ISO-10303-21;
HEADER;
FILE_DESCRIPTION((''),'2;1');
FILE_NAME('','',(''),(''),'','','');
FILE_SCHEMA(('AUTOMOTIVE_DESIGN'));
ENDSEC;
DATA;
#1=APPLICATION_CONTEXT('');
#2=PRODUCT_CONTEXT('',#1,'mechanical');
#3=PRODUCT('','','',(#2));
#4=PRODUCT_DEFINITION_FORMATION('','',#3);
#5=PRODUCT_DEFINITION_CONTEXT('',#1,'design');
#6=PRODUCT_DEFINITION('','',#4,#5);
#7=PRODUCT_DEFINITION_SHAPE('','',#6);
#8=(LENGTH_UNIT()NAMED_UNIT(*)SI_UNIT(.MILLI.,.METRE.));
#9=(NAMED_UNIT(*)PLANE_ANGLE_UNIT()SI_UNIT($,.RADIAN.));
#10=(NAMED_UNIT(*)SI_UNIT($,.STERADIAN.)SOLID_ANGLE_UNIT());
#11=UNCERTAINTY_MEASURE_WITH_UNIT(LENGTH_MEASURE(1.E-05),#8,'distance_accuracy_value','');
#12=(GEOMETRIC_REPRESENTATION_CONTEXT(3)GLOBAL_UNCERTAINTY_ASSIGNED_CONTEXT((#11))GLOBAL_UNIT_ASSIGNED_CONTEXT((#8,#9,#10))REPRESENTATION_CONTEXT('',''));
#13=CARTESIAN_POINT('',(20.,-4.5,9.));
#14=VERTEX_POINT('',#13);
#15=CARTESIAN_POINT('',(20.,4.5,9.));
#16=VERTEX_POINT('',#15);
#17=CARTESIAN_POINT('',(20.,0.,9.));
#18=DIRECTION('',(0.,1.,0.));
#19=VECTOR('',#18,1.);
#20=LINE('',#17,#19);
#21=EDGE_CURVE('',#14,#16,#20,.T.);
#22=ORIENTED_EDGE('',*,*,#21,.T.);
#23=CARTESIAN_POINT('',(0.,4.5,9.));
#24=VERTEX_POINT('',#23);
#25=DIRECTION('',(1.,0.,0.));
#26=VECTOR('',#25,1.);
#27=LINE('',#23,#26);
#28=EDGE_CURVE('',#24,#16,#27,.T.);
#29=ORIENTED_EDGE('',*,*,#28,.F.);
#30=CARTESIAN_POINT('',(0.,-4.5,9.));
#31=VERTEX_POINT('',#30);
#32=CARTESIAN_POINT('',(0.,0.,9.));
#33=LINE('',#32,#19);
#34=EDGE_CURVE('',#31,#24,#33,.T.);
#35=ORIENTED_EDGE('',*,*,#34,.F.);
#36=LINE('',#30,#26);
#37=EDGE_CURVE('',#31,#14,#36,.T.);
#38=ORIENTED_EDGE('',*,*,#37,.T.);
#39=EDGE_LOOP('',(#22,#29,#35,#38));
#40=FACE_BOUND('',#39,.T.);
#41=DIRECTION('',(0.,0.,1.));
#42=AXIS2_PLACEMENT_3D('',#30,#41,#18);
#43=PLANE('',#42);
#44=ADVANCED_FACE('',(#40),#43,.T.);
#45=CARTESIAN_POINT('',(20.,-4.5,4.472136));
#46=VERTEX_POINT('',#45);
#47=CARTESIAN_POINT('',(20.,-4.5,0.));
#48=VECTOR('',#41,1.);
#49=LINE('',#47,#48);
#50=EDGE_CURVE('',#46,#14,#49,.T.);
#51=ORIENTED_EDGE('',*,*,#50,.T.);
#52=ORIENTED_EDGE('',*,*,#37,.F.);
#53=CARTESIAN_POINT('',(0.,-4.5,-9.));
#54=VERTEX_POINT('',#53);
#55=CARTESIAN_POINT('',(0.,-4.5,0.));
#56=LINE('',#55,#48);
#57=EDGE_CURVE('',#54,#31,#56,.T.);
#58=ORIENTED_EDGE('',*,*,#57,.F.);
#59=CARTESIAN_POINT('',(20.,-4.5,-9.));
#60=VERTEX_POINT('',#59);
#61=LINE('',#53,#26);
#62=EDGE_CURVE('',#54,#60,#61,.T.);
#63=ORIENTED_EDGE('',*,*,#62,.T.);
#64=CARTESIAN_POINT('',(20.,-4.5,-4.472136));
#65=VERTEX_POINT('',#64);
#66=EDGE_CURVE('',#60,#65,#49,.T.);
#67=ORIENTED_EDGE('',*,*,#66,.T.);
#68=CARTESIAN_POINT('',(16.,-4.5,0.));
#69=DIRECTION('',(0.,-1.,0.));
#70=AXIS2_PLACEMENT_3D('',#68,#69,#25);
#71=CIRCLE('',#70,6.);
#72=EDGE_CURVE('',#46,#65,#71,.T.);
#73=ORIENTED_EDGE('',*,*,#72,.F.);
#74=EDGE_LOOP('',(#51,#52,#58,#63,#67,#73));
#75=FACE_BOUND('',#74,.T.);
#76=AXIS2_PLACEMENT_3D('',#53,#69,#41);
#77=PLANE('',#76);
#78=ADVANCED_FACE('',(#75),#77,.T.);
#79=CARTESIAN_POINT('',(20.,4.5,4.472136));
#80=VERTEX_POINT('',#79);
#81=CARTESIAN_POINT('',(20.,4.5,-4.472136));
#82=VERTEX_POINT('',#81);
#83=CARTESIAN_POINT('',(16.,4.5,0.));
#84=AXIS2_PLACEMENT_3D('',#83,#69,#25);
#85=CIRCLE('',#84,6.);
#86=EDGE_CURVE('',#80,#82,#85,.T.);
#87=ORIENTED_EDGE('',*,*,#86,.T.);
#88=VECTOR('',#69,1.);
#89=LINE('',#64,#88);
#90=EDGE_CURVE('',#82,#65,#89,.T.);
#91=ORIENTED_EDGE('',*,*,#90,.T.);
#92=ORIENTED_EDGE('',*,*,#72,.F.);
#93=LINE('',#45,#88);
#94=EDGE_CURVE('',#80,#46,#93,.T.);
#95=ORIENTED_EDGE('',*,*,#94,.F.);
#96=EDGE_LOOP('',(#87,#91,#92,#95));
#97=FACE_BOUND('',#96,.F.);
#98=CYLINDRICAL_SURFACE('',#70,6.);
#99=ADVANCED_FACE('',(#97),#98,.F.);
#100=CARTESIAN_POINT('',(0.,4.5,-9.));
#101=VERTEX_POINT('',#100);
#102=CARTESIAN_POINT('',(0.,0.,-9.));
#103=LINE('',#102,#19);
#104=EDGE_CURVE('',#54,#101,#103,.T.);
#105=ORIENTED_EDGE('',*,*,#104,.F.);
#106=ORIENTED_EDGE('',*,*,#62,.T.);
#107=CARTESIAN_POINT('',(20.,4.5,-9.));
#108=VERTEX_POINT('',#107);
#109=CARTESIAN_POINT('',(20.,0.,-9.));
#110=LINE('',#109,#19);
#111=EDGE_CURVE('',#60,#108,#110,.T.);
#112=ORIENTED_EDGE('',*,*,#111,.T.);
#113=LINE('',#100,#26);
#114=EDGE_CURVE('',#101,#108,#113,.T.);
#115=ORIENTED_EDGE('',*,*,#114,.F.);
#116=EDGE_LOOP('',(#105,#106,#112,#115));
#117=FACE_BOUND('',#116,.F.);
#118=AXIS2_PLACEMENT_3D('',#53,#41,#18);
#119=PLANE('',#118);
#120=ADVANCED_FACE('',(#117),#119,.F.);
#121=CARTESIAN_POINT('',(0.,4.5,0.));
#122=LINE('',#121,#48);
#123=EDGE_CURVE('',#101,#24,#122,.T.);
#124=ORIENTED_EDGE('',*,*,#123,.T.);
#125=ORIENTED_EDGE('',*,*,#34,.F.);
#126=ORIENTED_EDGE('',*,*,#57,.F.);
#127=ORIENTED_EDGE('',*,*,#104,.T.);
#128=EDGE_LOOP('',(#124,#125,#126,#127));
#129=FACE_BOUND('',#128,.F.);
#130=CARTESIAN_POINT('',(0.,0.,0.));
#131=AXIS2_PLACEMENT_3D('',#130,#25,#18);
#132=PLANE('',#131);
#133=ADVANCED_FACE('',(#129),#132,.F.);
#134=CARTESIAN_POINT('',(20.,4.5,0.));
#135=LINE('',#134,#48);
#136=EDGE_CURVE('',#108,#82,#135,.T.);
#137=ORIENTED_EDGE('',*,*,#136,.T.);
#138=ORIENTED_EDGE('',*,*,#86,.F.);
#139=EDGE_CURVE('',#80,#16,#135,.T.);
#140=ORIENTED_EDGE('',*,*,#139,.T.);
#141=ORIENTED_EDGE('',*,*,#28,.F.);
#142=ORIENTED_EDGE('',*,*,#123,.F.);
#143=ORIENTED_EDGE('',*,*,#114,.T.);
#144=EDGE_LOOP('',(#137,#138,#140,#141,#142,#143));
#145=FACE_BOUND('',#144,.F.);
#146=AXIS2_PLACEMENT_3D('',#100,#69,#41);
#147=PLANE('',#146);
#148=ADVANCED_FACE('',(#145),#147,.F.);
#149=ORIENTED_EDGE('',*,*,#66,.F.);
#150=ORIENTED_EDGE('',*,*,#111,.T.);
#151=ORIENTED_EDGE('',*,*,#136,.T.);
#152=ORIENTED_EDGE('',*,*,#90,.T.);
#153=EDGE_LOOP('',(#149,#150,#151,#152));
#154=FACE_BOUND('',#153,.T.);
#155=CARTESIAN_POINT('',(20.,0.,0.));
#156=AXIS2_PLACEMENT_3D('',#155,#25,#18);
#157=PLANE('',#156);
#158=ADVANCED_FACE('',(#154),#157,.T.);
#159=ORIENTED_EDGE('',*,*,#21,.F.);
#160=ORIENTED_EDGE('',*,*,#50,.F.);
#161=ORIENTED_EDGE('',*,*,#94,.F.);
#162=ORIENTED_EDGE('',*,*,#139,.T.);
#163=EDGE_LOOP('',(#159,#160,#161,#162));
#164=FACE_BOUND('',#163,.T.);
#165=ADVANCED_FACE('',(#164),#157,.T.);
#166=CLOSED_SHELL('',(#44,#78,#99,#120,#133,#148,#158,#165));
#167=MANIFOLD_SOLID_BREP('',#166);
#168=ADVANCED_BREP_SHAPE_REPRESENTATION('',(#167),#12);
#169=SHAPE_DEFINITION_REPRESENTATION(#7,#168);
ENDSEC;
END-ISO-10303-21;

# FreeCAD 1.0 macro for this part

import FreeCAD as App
import Part
import Sketcher
from FreeCAD import Vector
Q = App.Units.Quantity

doc = App.newDocument("Part")
body = doc.addObject("PartDesign::Body", "Body")

# Sketch on YZ plane
sketch1 = body.newObject("Sketcher::SketchObject", "Sketch")
sketch1.AttachmentSupport = (doc.getObject("YZ_Plane"), [""])
sketch1.MapMode = "FlatFace"
sketch1.addGeometry([
    Part.LineSegment(Vector(-4, 9, 0), Vector(-4, -9, 0)),
    Part.LineSegment(Vector(-4, -9, 0), Vector(4, -9, 0)),
    Part.LineSegment(Vector(4, -9, 0), Vector(4, 9, 0)),
    Part.LineSegment(Vector(4, 9, 0), Vector(-4, 9, 0)),
], False)
sketch1.addConstraint([
    Sketcher.Constraint("Coincident", 0, 2, 1, 1),
    Sketcher.Constraint("Coincident", 1, 2, 2, 1),
    Sketcher.Constraint("Coincident", 2, 2, 3, 1),
    Sketcher.Constraint("Coincident", 3, 2, 0, 1),
    Sketcher.Constraint("Vertical", 0),
    Sketcher.Constraint("Horizontal", 1),
    Sketcher.Constraint("Vertical", 2),
    Sketcher.Constraint("Horizontal", 3),
    Sketcher.Constraint("Symmetric", 0, 2, 2, 2, -1, 1),
    Sketcher.Constraint("DistanceX", 1, 1, 1, 2, Q("9 mm")),
    Sketcher.Constraint("DistanceY", 0, 2, 0, 1, Q("18 mm")),
])
pad1 = body.newObject("PartDesign::Pad", "Pad")
pad1.Profile = sketch1
pad1.Length = 20

# Sketch on XZ plane
sketch2 = body.newObject("Sketcher::SketchObject", "Sketch001")
sketch2.AttachmentSupport = (doc.getObject("XZ_Plane"), [""])
sketch2.MapMode = "FlatFace"
sketch2.AttachmentOffset = App.Placement(Vector(0, 0, 4.5), App.Rotation())
sketch2.addGeometry(Part.Circle(Vector(16, 0, 0), Vector(0, 0, 1), 6), False)
sketch2.addConstraint([
    Sketcher.Constraint("PointOnObject", 0, 3, -1),
    Sketcher.Constraint("Diameter", 0, Q("12 mm")),
    Sketcher.Constraint("DistanceX", -1, 1, 0, 3, Q("16 mm")),
])
pocket1 = body.newObject("PartDesign::Pocket", "Pocket")
pocket1.Profile = sketch2
pocket1.Length = 25

doc.recompute()
